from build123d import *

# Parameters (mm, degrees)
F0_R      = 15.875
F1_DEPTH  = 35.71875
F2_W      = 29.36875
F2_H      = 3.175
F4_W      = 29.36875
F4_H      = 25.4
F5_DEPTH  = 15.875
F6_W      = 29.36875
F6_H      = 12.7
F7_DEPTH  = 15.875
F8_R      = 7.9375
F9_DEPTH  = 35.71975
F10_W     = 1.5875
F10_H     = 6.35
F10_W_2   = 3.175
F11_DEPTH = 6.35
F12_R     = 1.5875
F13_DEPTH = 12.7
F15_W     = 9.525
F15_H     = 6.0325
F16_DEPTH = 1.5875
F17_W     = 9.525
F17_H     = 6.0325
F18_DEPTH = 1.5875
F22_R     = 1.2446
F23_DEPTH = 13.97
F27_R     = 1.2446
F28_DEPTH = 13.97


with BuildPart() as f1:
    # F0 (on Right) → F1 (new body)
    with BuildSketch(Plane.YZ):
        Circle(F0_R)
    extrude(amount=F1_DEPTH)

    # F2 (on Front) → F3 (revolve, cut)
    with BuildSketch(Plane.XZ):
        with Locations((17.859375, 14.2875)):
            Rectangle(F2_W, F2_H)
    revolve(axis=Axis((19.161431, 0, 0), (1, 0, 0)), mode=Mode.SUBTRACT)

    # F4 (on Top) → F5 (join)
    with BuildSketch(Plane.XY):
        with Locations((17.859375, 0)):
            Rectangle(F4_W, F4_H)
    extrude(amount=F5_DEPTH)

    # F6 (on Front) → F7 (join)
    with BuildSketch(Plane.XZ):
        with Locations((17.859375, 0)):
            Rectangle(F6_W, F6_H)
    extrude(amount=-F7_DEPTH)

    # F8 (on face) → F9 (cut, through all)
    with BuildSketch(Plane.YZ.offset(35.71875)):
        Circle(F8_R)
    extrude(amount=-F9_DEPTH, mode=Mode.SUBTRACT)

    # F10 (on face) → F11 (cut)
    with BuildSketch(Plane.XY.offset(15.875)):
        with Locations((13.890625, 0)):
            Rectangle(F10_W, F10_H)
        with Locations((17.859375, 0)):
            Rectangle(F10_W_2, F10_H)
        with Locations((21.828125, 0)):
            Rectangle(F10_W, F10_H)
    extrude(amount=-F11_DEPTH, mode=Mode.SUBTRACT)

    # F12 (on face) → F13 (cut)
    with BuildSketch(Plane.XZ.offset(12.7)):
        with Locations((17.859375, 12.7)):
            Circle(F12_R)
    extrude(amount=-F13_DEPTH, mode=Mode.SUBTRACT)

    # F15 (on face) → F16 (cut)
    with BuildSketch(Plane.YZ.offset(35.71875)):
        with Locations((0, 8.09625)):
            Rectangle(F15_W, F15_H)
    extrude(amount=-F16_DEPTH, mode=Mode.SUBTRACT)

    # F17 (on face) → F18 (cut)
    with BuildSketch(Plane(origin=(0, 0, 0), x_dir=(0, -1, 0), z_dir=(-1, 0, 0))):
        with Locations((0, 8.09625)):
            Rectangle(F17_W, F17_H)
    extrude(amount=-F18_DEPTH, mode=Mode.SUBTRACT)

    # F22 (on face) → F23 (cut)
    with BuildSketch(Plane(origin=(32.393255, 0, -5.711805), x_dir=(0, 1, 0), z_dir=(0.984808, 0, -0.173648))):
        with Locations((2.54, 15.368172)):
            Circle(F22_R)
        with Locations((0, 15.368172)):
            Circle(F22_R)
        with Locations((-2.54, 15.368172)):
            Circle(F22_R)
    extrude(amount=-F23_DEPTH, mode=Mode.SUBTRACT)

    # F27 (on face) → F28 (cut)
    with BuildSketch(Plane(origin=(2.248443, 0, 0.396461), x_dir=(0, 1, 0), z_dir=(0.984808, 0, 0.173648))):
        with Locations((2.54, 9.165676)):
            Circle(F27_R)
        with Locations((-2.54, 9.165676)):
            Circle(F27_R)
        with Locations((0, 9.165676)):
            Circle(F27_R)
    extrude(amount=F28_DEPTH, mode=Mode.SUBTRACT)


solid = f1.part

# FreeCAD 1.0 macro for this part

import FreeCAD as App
import Part
import Sketcher

V = App.Vector
Q = App.Units.Quantity


def add_polygon(sketch, points):
    """Adds a closed chain of lines whose ends are joined by coincident constraints."""
    first, n = sketch.GeometryCount, len(points)
    for a, b in zip(points, points[1:] + points[:1]):
        sketch.addGeometry(Part.LineSegment(App.Vector(*a, 0), App.Vector(*b, 0)), False)
    for i in range(n):
        sketch.addConstraint(Sketcher.Constraint("Coincident", first + i, 2, first + (i + 1) % n, 1))

doc = App.newDocument("Part")
params = doc.addObject("Spreadsheet::Sheet", "Params")
for row, (alias, value) in enumerate([
    ("sketch1_diameter", "1.25 in"),
    ("pad1_length", "1.40625 in"),
    ("sketch2_width", "1.15625 in"),
    ("sketch2_height", "0.125 in"),
    ("groove_angle", "360 deg"),
    ("sketch3_height", "1 in"),
    ("sketch3_width", "1.15625 in"),
    ("pad2_length", "0.625 in"),
    ("sketch4_height", "0.5 in"),
    ("sketch4_width", "1.15625 in"),
    ("pad3_length", "0.625 in"),
    ("sketch5_diameter", "0.625 in"),
    ("sketch6_height", "0.25 in"),
    ("sketch6_width", "0.0625 in"),
    ("sketch6_width2", "0.125 in"),
    ("pocket2_length", "0.25 in"),
    ("sketch7_diameter", "0.125 in"),
    ("pocket3_length", "0.5 in"),
    ("sketch8_width", "0.375 in"),
    ("pocket4_length", "0.0625 in"),
    ("sketch9_width", "0.375 in"),
    ("pocket5_length", "0.0625 in"),
    ("sketch10_diameter", "0.098 in"),
    ("pocket6_length", "0.55 in"),
    ("sketch11_diameter", "0.098 in"),
    ("pocket7_length", "0.55 in"),
], start=1):
    params.set(f"A{row}", alias)
    params.set(f"B{row}", "=" + value)
    params.setAlias(f"B{row}", alias)

body = doc.addObject("PartDesign::Body", "Body")

# Sketch on YZ plane
sketch1 = doc.addObject("Sketcher::SketchObject", "Sketch")
body.addObject(sketch1)
sketch1.AttachmentSupport = (doc.YZ_Plane, [""])
sketch1.MapMode = "FlatFace"
sketch1.addGeometry(Part.Circle(V(0, 0, 0), V(0, 0, 1), 16), False)
sketch1.addConstraint([
    Sketcher.Constraint("Coincident", 0, 3, -1, 1),
    Sketcher.Constraint("Diameter", 0, Q("1.25 in")),
])
sketch1.setExpression("Constraints[1]", "Params.sketch1_diameter")
pad1 = doc.addObject("PartDesign::Pad", "Pad")
body.addObject(pad1)
pad1.Profile = sketch1
pad1.setExpression("Length", "Params.pad1_length")

# Sketch on XZ plane
sketch2 = doc.addObject("Sketcher::SketchObject", "Sketch001")
body.addObject(sketch2)
sketch2.AttachmentSupport = (doc.XZ_Plane, [""])
sketch2.MapMode = "FlatFace"
add_polygon(sketch2, [(3.2, 15.9), (3.2, 12.7), (32.5, 12.7), (32.5, 15.9)])  # lines 0-3
sketch2.addConstraint([
    Sketcher.Constraint("Vertical", 0),
    Sketcher.Constraint("Horizontal", 1),
    Sketcher.Constraint("Vertical", 2),
    Sketcher.Constraint("Horizontal", 3),
    Sketcher.Constraint("DistanceY", -1, 1, 0, 2, Q("0.5 in")),
    Sketcher.Constraint("DistanceX", 1, 1, 1, 2, Q("1.15625 in")),
    Sketcher.Constraint("DistanceY", 0, 2, 0, 1, Q("0.125 in")),
    Sketcher.Constraint("DistanceX", -1, 1, 0, 2, Q("0.125 in")),
])
sketch2.setExpression("Constraints[9]", "Params.sketch2_width")
sketch2.setExpression("Constraints[10]", "Params.sketch2_height")
groove = doc.addObject("PartDesign::Groove", "Groove")
body.addObject(groove)
groove.Profile = sketch2
groove.ReferenceAxis = (sketch2, ["H_Axis"])
groove.setExpression("Angle", "Params.groove_angle")

# Sketch on XY plane
sketch3 = doc.addObject("Sketcher::SketchObject", "Sketch002")
body.addObject(sketch3)
sketch3.AttachmentSupport = (doc.XY_Plane, [""])
sketch3.MapMode = "FlatFace"
add_polygon(sketch3, [(3, 13), (3, -13), (33, -13), (33, 13)])  # lines 0-3
sketch3.addConstraint([
    Sketcher.Constraint("Vertical", 0),
    Sketcher.Constraint("Horizontal", 1),
    Sketcher.Constraint("Vertical", 2),
    Sketcher.Constraint("Horizontal", 3),
    Sketcher.Constraint("DistanceY", 0, 2, 0, 1, Q("1 in")),
    Sketcher.Constraint("DistanceY", 0, 2, -1, 1, Q("0.5 in")),
    Sketcher.Constraint("DistanceX", 1, 1, 1, 2, Q("1.15625 in")),
    Sketcher.Constraint("DistanceX", -1, 1, 0, 2, Q("0.125 in")),
])
sketch3.setExpression("Constraints[8]", "Params.sketch3_height")
sketch3.setExpression("Constraints[10]", "Params.sketch3_width")
pad2 = doc.addObject("PartDesign::Pad", "Pad001")
body.addObject(pad2)
pad2.Profile = sketch3
pad2.setExpression("Length", "Params.pad2_length")

# Sketch on XZ plane
sketch4 = doc.addObject("Sketcher::SketchObject", "Sketch003")
body.addObject(sketch4)
sketch4.AttachmentSupport = (doc.XZ_Plane, [""])
sketch4.MapMode = "FlatFace"
add_polygon(sketch4, [(3, 6), (3, -6), (33, -6), (33, 6)])  # lines 0-3
sketch4.addConstraint([
    Sketcher.Constraint("Vertical", 0),
    Sketcher.Constraint("Horizontal", 1),
    Sketcher.Constraint("Vertical", 2),
    Sketcher.Constraint("Horizontal", 3),
    Sketcher.Constraint("DistanceY", 0, 2, 0, 1, Q("0.5 in")),
    Sketcher.Constraint("DistanceX", 1, 1, 1, 2, Q("1.15625 in")),
    Sketcher.Constraint("DistanceY", 0, 2, -1, 1, Q("0.25 in")),
    Sketcher.Constraint("DistanceX", -1, 1, 0, 2, Q("0.125 in")),
])
sketch4.setExpression("Constraints[8]", "Params.sketch4_height")
sketch4.setExpression("Constraints[9]", "Params.sketch4_width")
pad3 = doc.addObject("PartDesign::Pad", "Pad002")
body.addObject(pad3)
pad3.Profile = sketch4
pad3.setExpression("Length", "Params.pad3_length")
pad3.Reversed = True

# Sketch on YZ plane
sketch5 = doc.addObject("Sketcher::SketchObject", "Sketch004")
body.addObject(sketch5)
sketch5.AttachmentSupport = (doc.YZ_Plane, [""])
sketch5.MapMode = "FlatFace"
sketch5.AttachmentOffset = App.Placement(V(0, 0, 1.40625 * 25.4), App.Rotation())
sketch5.addGeometry(Part.Circle(V(0, 0, 0), V(0, 0, 1), 8), False)
sketch5.addConstraint([
    Sketcher.Constraint("Coincident", 0, 3, -1, 1),
    Sketcher.Constraint("Diameter", 0, Q("0.625 in")),
])
sketch5.setExpression("Constraints[1]", "Params.sketch5_diameter")
pocket1 = doc.addObject("PartDesign::Pocket", "Pocket")
body.addObject(pocket1)
pocket1.Profile = sketch5
pocket1.Type = "ThroughAll"

# Sketch on XY plane
sketch6 = doc.addObject("Sketcher::SketchObject", "Sketch005")
body.addObject(sketch6)
sketch6.AttachmentSupport = (doc.XY_Plane, [""])
sketch6.MapMode = "FlatFace"
sketch6.AttachmentOffset = App.Placement(V(0, 0, 0.625 * 25.4), App.Rotation())
add_polygon(sketch6, [(13.1, 3.2), (13.1, -3.2), (14.7, -3.2), (14.7, 3.2)])  # lines 0-3
add_polygon(sketch6, [(16.3, 3.2), (16.3, -3.2), (19.4, -3.2), (19.4, 3.2)])  # lines 4-7
add_polygon(sketch6, [(21, 3.2), (21, -3.2), (22.6, -3.2), (22.6, 3.2)])  # lines 8-11
sketch6.addConstraint([
    Sketcher.Constraint("Vertical", 0),
    Sketcher.Constraint("Horizontal", 1),
    Sketcher.Constraint("Vertical", 2),
    Sketcher.Constraint("Horizontal", 3),
    Sketcher.Constraint("Vertical", 4),
    Sketcher.Constraint("Horizontal", 5),
    Sketcher.Constraint("Vertical", 6),
    Sketcher.Constraint("Horizontal", 7),
    Sketcher.Constraint("Vertical", 8),
    Sketcher.Constraint("Horizontal", 9),
    Sketcher.Constraint("Vertical", 10),
    Sketcher.Constraint("Horizontal", 11),
    Sketcher.Constraint("Horizontal", 1, 2, 4, 2),
    Sketcher.Constraint("Horizontal", 3, 2, 6, 2),
    Sketcher.Constraint("Horizontal", 5, 2, 8, 2),
    Sketcher.Constraint("Horizontal", 7, 2, 10, 2),
    Sketcher.Constraint("Equal", 3, 9),
    Sketcher.Constraint("DistanceY", 0, 2, 0, 1, Q("0.25 in")),
    Sketcher.Constraint("DistanceX", 1, 1, 1, 2, Q("0.0625 in")),
    Sketcher.Constraint("DistanceX", 5, 1, 5, 2, Q("0.125 in")),
    Sketcher.Constraint("DistanceX", 0, 2, 5, 2, Q("0.25 in")),
    Sketcher.Constraint("DistanceX", 1, 2, 8, 2, Q("0.25 in")),
    Sketcher.Constraint("DistanceX", -1, 1, 0, 2, Q("0.515625 in")),
    Sketcher.Constraint("DistanceY", 0, 2, -1, 1, Q("0.125 in")),
])
sketch6.setExpression("Constraints[29]", "Params.sketch6_height")
sketch6.setExpression("Constraints[30]", "Params.sketch6_width")
sketch6.setExpression("Constraints[31]", "Params.sketch6_width2")
pocket2 = doc.addObject("PartDesign::Pocket", "Pocket001")
body.addObject(pocket2)
pocket2.Profile = sketch6
pocket2.setExpression("Length", "Params.pocket2_length")

# Sketch on XZ plane
sketch7 = doc.addObject("Sketcher::SketchObject", "Sketch006")
body.addObject(sketch7)
sketch7.AttachmentSupport = (doc.XZ_Plane, [""])
sketch7.MapMode = "FlatFace"
sketch7.AttachmentOffset = App.Placement(V(0, 0, 0.5 * 25.4), App.Rotation())
sketch7.addGeometry(Part.Circle(V(17.9, 12.7, 0), V(0, 0, 1), 1.6), False)
sketch7.addConstraint([
    Sketcher.Constraint("Diameter", 0, Q("0.125 in")),
    Sketcher.Constraint("DistanceY", -1, 1, 0, 3, Q("0.5 in")),
    Sketcher.Constraint("DistanceX", -1, 1, 0, 3, Q("0.703125 in")),
])
sketch7.setExpression("Constraints[0]", "Params.sketch7_diameter")
pocket3 = doc.addObject("PartDesign::Pocket", "Pocket002")
body.addObject(pocket3)
pocket3.Profile = sketch7
pocket3.setExpression("Length", "Params.pocket3_length")

# Sketch on YZ plane
sketch8 = doc.addObject("Sketcher::SketchObject", "Sketch007")
body.addObject(sketch8)
sketch8.AttachmentSupport = (doc.YZ_Plane, [""])
sketch8.MapMode = "FlatFace"
sketch8.AttachmentOffset = App.Placement(V(0, 0, 1.40625 * 25.4), App.Rotation())
add_polygon(sketch8, [(-5, 11), (-5, 5), (5, 5), (5, 11)])  # lines 0-3
sketch8.addConstraint([
    Sketcher.Constraint("Vertical", 0),
    Sketcher.Constraint("Horizontal", 1),
    Sketcher.Constraint("Vertical", 2),
    Sketcher.Constraint("Horizontal", 3),
    Sketcher.Constraint("DistanceY", -1, 1, 0, 2, Q("0.2 in")),
    Sketcher.Constraint("DistanceX", 1, 1, 1, 2, Q("0.375 in")),
    Sketcher.Constraint("DistanceY", 0, 2, 0, 1, Q("0.2375 in")),
    Sketcher.Constraint("DistanceX", 0, 2, -1, 1, Q("0.1875 in")),
])
sketch8.setExpression("Constraints[9]", "Params.sketch8_width")
pocket4 = doc.addObject("PartDesign::Pocket", "Pocket003")
body.addObject(pocket4)
pocket4.Profile = sketch8
pocket4.setExpression("Length", "Params.pocket4_length")

# Sketch on YZ plane
sketch9 = doc.addObject("Sketcher::SketchObject", "Sketch008")
body.addObject(sketch9)
sketch9.AttachmentSupport = (doc.YZ_Plane, [""])
sketch9.MapMode = "FlatFace"
add_polygon(sketch9, [(5, 11), (5, 5), (-5, 5), (-5, 11)])  # lines 0-3
sketch9.addConstraint([
    Sketcher.Constraint("Vertical", 0),
    Sketcher.Constraint("Horizontal", 1),
    Sketcher.Constraint("Vertical", 2),
    Sketcher.Constraint("Horizontal", 3),
    Sketcher.Constraint("DistanceY", -1, 1, 0, 2, Q("0.2 in")),
    Sketcher.Constraint("DistanceX", 1, 2, 1, 1, Q("0.375 in")),
    Sketcher.Constraint("DistanceY", 0, 2, 0, 1, Q("0.2375 in")),
    Sketcher.Constraint("DistanceX", -1, 1, 0, 2, Q("0.1875 in")),
])
sketch9.setExpression("Constraints[9]", "Params.sketch9_width")
pocket5 = doc.addObject("PartDesign::Pocket", "Pocket004")
body.addObject(pocket5)
pocket5.Profile = sketch9
pocket5.setExpression("Length", "Params.pocket5_length")
pocket5.Reversed = True

# Sketch on an angled plane
sketch10 = doc.addObject("Sketcher::SketchObject", "Sketch009")
body.addObject(sketch10)
sketch10.Placement = App.Placement(V(32.393255, 0, -5.711805), App.Rotation(V(0, 1, 0), V(0.173647963, 0, 0.984807791), V(0.984807791, 0, -0.173647963), "ZXY"))
sketch10.addGeometry([
    Part.Circle(V(2.5, 15.4, 0), V(0, 0, 1), 1.2),
    Part.Circle(V(0, 15.4, 0), V(0, 0, 1), 1.2),
    Part.Circle(V(-2.5, 15.4, 0), V(0, 0, 1), 1.2),
], False)
sketch10.addConstraint([
    Sketcher.Constraint("Equal", 0, 1),
    Sketcher.Constraint("Equal", 1, 2),
    Sketcher.Constraint("Symmetric", 0, 3, 2, 3, -2),
    Sketcher.Constraint("PointOnObject", 1, 3, -2),
    Sketcher.Constraint("Horizontal", 0, 3, 1, 3),
    Sketcher.Constraint("Diameter", 0, Q("0.098 in")),
    Sketcher.Constraint("DistanceX", -1, 1, 0, 3, Q("0.1 in")),
    Sketcher.Constraint("DistanceY", -1, 1, 0, 3, Q("15.368172 mm")),
])
sketch10.setExpression("Constraints[5]", "Params.sketch10_diameter")
pocket6 = doc.addObject("PartDesign::Pocket", "Pocket005")
body.addObject(pocket6)
pocket6.Profile = sketch10
pocket6.setExpression("Length", "Params.pocket6_length")

# Sketch on an angled plane
sketch11 = doc.addObject("Sketcher::SketchObject", "Sketch010")
body.addObject(sketch11)
sketch11.Placement = App.Placement(V(2.248443, 0, 0.396461), App.Rotation(V(0, 1, 0), V(-0.173647963, 0, 0.984807791), V(0.984807791, 0, 0.173647963), "ZXY"))
sketch11.addGeometry([
    Part.Circle(V(2.5, 9.2, 0), V(0, 0, 1), 1.2),
    Part.Circle(V(-2.5, 9.2, 0), V(0, 0, 1), 1.2),
    Part.Circle(V(0, 9.2, 0), V(0, 0, 1), 1.2),
], False)
sketch11.addConstraint([
    Sketcher.Constraint("Equal", 0, 1),
    Sketcher.Constraint("Equal", 1, 2),
    Sketcher.Constraint("Symmetric", 0, 3, 1, 3, -2),
    Sketcher.Constraint("PointOnObject", 2, 3, -2),
    Sketcher.Constraint("Horizontal", 1, 3, 2, 3),
    Sketcher.Constraint("Diameter", 0, Q("0.098 in")),
    Sketcher.Constraint("DistanceX", -1, 1, 0, 3, Q("0.1 in")),
    Sketcher.Constraint("DistanceY", -1, 1, 0, 3, Q("9.165676 mm")),
])
sketch11.setExpression("Constraints[5]", "Params.sketch11_diameter")
pocket7 = doc.addObject("PartDesign::Pocket", "Pocket006")
body.addObject(pocket7)
pocket7.Profile = sketch11
pocket7.setExpression("Length", "Params.pocket7_length")
pocket7.Reversed = True

doc.recompute()
